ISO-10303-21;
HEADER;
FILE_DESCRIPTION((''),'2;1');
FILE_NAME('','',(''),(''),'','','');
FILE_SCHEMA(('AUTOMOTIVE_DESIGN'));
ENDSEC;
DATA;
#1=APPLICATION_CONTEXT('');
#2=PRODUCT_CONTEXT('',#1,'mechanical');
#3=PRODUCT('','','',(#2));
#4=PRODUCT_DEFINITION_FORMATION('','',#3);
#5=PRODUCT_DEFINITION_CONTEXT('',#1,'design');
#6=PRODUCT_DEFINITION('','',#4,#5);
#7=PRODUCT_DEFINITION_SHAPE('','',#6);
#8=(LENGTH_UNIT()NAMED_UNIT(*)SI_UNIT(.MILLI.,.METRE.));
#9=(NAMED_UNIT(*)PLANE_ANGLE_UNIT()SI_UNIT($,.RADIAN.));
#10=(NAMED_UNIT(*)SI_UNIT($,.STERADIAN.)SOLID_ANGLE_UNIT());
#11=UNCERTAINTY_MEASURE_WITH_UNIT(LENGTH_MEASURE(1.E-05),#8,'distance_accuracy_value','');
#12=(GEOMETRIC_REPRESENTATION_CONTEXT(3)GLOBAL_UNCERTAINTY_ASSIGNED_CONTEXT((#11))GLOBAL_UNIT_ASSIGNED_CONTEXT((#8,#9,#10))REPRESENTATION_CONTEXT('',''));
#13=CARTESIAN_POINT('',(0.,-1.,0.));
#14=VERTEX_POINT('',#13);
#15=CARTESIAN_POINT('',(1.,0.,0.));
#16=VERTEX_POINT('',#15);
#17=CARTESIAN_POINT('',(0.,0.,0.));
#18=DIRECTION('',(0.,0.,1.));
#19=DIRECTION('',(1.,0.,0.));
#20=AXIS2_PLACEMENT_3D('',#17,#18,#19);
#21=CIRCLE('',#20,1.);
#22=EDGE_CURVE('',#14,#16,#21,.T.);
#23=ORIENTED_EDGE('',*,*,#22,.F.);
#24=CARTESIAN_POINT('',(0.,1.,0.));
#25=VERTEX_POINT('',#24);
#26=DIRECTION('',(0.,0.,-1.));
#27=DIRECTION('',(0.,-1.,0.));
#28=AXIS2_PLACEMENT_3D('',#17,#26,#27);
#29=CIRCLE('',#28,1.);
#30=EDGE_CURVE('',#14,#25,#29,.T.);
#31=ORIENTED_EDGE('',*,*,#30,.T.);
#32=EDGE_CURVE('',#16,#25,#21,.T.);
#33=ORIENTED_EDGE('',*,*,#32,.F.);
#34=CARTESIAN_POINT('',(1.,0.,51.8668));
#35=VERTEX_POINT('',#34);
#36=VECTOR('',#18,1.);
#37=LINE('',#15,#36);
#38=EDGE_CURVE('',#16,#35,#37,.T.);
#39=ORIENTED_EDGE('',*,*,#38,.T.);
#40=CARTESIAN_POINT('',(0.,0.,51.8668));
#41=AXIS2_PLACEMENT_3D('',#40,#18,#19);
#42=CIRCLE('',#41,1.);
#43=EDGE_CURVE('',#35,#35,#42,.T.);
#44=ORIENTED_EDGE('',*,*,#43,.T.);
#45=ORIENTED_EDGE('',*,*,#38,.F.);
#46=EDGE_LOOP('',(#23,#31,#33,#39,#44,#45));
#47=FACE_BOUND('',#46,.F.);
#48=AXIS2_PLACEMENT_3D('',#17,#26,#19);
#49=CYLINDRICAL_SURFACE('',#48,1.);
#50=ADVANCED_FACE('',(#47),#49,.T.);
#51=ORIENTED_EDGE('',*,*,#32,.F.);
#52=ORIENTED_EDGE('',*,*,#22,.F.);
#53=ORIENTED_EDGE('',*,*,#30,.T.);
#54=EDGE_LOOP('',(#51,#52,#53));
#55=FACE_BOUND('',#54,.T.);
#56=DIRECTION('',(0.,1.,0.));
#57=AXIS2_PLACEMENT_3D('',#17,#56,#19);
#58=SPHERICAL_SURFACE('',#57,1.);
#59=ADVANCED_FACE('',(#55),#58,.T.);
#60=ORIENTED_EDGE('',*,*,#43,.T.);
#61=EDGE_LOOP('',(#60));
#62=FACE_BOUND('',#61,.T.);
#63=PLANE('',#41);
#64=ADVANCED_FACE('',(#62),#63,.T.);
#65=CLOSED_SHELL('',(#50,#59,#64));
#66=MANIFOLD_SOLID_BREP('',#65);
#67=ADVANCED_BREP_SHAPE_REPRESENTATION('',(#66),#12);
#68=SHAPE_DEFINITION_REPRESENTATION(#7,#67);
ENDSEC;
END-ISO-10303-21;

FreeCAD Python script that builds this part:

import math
import FreeCAD as App
import Part
import Sketcher

V = App.Vector
Q = App.Units.Quantity

doc = App.newDocument("Part")
body = doc.addObject("PartDesign::Body", "Body")

# Sketch on XY plane
sketch1 = doc.addObject("Sketcher::SketchObject", "Sketch")
body.addObject(sketch1)
sketch1.AttachmentSupport = (doc.XY_Plane, [""])
sketch1.MapMode = "FlatFace"
sketch1.addGeometry(Part.Circle(V(0, 0, 0), V(0, 0, 1), 1), False)
sketch1.addConstraint(Sketcher.Constraint("Coincident", 0, 3, -1, 1))
sketch1.addConstraint(Sketcher.Constraint("Diameter", 0, Q("2 mm")))
pad1 = doc.addObject("PartDesign::Pad", "Pad")
body.addObject(pad1)
pad1.Profile = sketch1
pad1.Length = 51.8668

# Sketch on YZ plane
sketch2 = doc.addObject("Sketcher::SketchObject", "Sketch001")
body.addObject(sketch2)
sketch2.AttachmentSupport = (doc.YZ_Plane, [""])
sketch2.MapMode = "FlatFace"
sketch2.addGeometry(Part.LineSegment(V(1, 0, 0), V(-1, 0, 0)), False)
sketch2.addGeometry(Part.ArcOfCircle(Part.Circle(V(0, 0, 0), V(0, 0, 1), 1), math.radians(180), math.radians(360)), False)
sketch2.addConstraint(Sketcher.Constraint("Coincident", 0, 1, 1, 2))
sketch2.addConstraint(Sketcher.Constraint("Coincident", 1, 1, 0, 2))
sketch2.addConstraint(Sketcher.Constraint("Horizontal", 0))
sketch2.addConstraint(Sketcher.Constraint("Coincident", 1, 3, -1, 1))
sketch2.addConstraint(Sketcher.Constraint("PointOnObject", 0, 1, -1))
sketch2.addConstraint(Sketcher.Constraint("Radius", 1, Q("1 mm")))
revolution = doc.addObject("PartDesign::Revolution", "Revolution")
body.addObject(revolution)
revolution.Profile = sketch2
revolution.ReferenceAxis = (sketch2, ["H_Axis"])
revolution.Angle = 180
revolution.Midplane = True

doc.recompute()
